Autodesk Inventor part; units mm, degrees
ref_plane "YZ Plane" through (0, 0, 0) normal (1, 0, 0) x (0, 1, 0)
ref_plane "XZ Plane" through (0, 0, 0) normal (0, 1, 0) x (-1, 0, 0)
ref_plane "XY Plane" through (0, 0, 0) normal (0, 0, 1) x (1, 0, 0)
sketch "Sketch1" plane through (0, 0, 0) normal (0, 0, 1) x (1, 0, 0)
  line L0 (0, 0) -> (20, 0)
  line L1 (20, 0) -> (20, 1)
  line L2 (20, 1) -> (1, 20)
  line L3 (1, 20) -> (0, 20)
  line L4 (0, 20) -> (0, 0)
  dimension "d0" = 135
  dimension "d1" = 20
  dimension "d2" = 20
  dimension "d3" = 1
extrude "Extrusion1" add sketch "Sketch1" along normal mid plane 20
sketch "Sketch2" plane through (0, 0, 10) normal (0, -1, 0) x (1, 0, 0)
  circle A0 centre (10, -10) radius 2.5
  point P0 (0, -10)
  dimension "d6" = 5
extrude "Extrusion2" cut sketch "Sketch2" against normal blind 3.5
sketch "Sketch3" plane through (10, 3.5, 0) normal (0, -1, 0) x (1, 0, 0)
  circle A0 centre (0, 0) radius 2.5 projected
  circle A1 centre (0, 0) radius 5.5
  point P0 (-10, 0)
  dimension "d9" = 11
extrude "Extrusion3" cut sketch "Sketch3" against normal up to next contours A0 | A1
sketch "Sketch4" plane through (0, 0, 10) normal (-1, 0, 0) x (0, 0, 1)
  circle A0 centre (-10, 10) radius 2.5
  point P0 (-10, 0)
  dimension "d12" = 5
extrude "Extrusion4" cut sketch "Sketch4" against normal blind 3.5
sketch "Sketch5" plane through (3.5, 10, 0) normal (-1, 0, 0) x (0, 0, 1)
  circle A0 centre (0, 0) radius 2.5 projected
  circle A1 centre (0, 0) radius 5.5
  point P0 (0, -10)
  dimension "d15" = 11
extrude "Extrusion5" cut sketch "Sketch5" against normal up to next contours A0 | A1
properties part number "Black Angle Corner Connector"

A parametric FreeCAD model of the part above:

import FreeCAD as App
import Part
import Sketcher


def add_polygon(sketch, points):
    """Adds a closed chain of lines whose ends are joined by coincident constraints."""
    first, n = sketch.GeometryCount, len(points)
    for a, b in zip(points, points[1:] + points[:1]):
        sketch.addGeometry(Part.LineSegment(App.Vector(*a, 0), App.Vector(*b, 0)), False)
    for i in range(n):
        sketch.addConstraint(Sketcher.Constraint("Coincident", first + i, 2, first + (i + 1) % n, 1))

doc = App.newDocument("Part")
body = doc.addObject("PartDesign::Body", "Body")

# Sketch on XY plane
sketch1 = body.newObject("Sketcher::SketchObject", "Sketch")
sketch1.AttachmentSupport = (doc.getObject("XY_Plane"), [""])
sketch1.MapMode = "FlatFace"
add_polygon(sketch1, [(0, 20), (0, 0), (20, 0), (20, 1), (1, 20)])  # lines 0-4
sketch1.addConstraint([
    Sketcher.Constraint("Vertical", 0),
    Sketcher.Constraint("Horizontal", 1),
    Sketcher.Constraint("Vertical", 2),
    Sketcher.Constraint("Horizontal", 4),
    Sketcher.Constraint("Coincident", 0, 2, -1, 1),
    Sketcher.Constraint("Equal", 1, 0),
    Sketcher.Constraint("Equal", 4, 2),
    Sketcher.Constraint("DistanceX", 1, 1, 1, 2, 20.0),
    Sketcher.Constraint("DistanceX", 4, 2, 4, 1, 1.0),
])
pad1 = body.newObject("PartDesign::Pad", "Pad")
pad1.Profile = sketch1
pad1.Length = 20
pad1.Midplane = True

# Sketch on XZ plane
sketch2 = body.newObject("Sketcher::SketchObject", "Sketch001")
sketch2.AttachmentSupport = (doc.getObject("XZ_Plane"), [""])
sketch2.MapMode = "FlatFace"
sketch2.addGeometry(Part.Circle(App.Vector(10, 0, 0), App.Vector(0, 0, 1), 2.5), False)
sketch2.addConstraint([
    Sketcher.Constraint("PointOnObject", 0, 3, -1),
    Sketcher.Constraint("Diameter", 0, 5.0),
    Sketcher.Constraint("DistanceX", -1, 1, 0, 3, 10.0),
])
pocket1 = body.newObject("PartDesign::Pocket", "Pocket")
pocket1.Profile = sketch2
pocket1.Length = 3.5

# Sketch on XZ plane
sketch3 = body.newObject("Sketcher::SketchObject", "Sketch002")
sketch3.AttachmentSupport = (doc.getObject("XZ_Plane"), [""])
sketch3.MapMode = "FlatFace"
sketch3.AttachmentOffset = App.Placement(App.Vector(0, 0, -3.5), App.Rotation())
sketch3.addGeometry(Part.Circle(App.Vector(10, 0, 0), App.Vector(0, 0, 1), 5.5), False)
sketch3.addConstraint([
    Sketcher.Constraint("PointOnObject", 0, 3, -1),
    Sketcher.Constraint("Diameter", 0, 11.0),
    Sketcher.Constraint("DistanceX", -1, 1, 0, 3, 10.0),
])
pocket2 = body.newObject("PartDesign::Pocket", "Pocket001")
pocket2.Profile = sketch3
pocket2.Type = "UpToFirst"

# Sketch on YZ plane
sketch4 = body.newObject("Sketcher::SketchObject", "Sketch003")
sketch4.AttachmentSupport = (doc.getObject("YZ_Plane"), [""])
sketch4.MapMode = "FlatFace"
sketch4.addGeometry(Part.Circle(App.Vector(10, 0, 0), App.Vector(0, 0, 1), 2.5), False)
sketch4.addConstraint([
    Sketcher.Constraint("PointOnObject", 0, 3, -1),
    Sketcher.Constraint("Diameter", 0, 5.0),
    Sketcher.Constraint("DistanceX", -1, 1, 0, 3, 10.0),
])
pocket3 = body.newObject("PartDesign::Pocket", "Pocket002")
pocket3.Profile = sketch4
pocket3.Length = 3.5
pocket3.Reversed = True

# Sketch on YZ plane
sketch5 = body.newObject("Sketcher::SketchObject", "Sketch004")
sketch5.AttachmentSupport = (doc.getObject("YZ_Plane"), [""])
sketch5.MapMode = "FlatFace"
sketch5.AttachmentOffset = App.Placement(App.Vector(0, 0, 3.5), App.Rotation())
sketch5.addGeometry(Part.Circle(App.Vector(10, 0, 0), App.Vector(0, 0, 1), 5.5), False)
sketch5.addConstraint([
    Sketcher.Constraint("PointOnObject", 0, 3, -1),
    Sketcher.Constraint("Diameter", 0, 11.0),
    Sketcher.Constraint("DistanceX", -1, 1, 0, 3, 10.0),
])
pocket4 = body.newObject("PartDesign::Pocket", "Pocket003")
pocket4.Profile = sketch5
pocket4.Type = "UpToFirst"
pocket4.Reversed = True

doc.recompute()
